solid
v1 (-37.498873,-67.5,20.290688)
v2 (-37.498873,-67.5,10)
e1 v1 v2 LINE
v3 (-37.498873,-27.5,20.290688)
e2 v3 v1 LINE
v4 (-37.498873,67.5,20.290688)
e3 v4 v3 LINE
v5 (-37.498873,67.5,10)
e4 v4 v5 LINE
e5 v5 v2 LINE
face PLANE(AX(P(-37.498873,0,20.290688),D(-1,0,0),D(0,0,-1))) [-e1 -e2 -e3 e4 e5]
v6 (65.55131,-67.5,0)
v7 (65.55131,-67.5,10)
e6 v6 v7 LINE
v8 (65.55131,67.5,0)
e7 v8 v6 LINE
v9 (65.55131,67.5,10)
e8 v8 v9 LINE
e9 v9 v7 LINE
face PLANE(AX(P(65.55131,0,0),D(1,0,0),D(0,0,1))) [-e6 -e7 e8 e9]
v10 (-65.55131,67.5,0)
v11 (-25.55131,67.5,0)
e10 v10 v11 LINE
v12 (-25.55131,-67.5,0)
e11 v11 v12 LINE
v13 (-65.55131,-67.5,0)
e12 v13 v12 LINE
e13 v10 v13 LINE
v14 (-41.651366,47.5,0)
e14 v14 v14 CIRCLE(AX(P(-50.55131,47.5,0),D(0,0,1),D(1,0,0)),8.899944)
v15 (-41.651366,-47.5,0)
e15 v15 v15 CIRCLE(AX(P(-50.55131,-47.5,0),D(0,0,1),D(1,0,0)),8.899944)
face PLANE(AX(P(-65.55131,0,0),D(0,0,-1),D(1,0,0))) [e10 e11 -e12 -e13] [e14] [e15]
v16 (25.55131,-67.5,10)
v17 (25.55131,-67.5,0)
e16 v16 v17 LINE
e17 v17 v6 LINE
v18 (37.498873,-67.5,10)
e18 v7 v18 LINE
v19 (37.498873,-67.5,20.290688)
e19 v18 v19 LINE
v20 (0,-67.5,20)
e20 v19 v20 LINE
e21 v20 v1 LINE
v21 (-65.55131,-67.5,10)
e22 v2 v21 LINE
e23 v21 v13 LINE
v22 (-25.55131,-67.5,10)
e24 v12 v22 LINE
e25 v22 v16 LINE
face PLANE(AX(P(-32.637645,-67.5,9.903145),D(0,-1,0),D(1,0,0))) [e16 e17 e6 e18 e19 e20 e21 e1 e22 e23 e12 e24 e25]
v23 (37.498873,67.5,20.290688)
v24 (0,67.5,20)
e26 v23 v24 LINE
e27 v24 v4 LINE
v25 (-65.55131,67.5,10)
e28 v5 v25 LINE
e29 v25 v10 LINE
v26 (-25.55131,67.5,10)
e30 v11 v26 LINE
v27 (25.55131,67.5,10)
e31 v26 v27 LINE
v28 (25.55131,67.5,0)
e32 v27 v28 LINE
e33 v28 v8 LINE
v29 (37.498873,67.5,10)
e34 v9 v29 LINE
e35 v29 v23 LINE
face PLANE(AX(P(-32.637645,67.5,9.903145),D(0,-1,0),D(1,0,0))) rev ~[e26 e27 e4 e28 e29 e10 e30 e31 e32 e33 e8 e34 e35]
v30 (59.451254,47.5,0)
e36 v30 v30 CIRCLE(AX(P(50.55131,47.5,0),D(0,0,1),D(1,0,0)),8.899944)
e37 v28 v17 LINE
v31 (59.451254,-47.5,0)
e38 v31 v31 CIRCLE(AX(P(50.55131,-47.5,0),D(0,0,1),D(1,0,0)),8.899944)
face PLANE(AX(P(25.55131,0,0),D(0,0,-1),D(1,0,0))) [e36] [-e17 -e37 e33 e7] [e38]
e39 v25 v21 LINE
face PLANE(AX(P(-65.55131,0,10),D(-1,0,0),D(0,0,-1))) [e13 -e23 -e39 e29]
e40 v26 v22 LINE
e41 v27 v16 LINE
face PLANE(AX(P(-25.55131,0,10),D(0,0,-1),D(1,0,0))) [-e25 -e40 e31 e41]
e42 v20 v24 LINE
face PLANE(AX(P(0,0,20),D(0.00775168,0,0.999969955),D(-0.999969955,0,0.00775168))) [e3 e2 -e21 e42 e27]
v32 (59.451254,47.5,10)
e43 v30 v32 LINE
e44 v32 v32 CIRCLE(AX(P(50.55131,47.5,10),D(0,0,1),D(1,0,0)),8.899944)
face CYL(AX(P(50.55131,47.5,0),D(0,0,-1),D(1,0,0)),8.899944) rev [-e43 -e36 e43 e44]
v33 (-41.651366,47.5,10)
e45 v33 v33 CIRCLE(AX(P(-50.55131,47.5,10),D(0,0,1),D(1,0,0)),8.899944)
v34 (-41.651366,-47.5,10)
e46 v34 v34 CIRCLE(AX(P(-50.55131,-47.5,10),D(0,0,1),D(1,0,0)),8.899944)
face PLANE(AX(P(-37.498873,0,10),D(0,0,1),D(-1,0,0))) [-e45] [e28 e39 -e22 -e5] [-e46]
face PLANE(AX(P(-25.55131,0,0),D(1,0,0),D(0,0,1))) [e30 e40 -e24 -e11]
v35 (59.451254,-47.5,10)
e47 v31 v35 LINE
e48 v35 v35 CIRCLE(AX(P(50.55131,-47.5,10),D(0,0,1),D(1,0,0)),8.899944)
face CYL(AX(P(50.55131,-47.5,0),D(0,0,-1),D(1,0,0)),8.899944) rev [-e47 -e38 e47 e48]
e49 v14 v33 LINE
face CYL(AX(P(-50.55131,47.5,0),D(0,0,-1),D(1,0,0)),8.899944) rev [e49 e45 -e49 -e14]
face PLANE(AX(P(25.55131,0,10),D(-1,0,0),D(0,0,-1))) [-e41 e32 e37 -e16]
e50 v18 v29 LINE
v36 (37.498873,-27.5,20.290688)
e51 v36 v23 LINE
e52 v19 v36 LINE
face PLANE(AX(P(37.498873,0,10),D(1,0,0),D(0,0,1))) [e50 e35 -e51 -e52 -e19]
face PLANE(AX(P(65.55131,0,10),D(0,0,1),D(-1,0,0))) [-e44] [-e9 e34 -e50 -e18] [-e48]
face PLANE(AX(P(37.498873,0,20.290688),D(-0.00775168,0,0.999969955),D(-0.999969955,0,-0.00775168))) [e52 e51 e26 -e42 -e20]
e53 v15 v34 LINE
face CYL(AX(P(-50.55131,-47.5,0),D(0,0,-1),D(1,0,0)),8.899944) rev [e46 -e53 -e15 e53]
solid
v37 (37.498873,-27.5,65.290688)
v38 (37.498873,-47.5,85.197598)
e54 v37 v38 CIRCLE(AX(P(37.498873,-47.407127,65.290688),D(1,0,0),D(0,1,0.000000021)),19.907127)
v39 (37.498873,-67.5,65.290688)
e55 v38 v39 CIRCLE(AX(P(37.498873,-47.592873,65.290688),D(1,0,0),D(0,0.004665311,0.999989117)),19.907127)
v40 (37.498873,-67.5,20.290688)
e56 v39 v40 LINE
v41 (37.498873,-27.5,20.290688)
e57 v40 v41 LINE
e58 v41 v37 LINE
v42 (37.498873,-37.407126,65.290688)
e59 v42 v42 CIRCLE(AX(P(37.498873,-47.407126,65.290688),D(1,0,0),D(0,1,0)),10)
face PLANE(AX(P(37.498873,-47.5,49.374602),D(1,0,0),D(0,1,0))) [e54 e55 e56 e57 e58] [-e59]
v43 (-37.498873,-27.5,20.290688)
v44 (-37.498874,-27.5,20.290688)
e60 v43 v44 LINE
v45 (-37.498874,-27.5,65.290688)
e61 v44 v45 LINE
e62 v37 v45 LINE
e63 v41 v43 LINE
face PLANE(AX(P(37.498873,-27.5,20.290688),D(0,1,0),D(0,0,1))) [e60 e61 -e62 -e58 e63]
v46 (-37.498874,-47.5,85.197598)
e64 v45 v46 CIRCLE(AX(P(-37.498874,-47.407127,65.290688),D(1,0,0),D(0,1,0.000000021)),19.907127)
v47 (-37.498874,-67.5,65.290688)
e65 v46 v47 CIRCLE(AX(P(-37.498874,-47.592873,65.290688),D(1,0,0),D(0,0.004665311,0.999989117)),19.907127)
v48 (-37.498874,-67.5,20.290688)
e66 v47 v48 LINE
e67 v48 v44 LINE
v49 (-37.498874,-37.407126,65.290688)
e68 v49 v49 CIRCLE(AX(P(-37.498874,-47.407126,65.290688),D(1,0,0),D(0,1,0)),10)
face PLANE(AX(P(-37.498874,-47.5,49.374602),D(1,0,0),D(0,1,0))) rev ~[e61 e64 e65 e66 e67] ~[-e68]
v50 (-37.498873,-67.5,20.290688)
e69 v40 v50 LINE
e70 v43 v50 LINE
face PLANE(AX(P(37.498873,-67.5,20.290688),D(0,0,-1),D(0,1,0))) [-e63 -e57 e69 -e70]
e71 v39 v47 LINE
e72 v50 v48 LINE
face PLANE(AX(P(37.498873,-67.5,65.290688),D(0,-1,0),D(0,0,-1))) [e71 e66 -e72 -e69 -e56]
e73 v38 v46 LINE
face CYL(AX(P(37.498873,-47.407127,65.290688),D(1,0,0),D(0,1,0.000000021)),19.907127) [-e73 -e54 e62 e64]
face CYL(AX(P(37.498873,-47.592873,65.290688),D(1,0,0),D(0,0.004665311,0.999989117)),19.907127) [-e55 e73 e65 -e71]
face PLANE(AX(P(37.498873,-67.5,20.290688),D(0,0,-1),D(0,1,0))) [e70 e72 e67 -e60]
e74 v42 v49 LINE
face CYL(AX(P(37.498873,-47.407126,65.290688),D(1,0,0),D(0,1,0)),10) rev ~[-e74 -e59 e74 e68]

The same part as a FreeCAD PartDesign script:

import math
import FreeCAD as App
import Part
import Sketcher

V = App.Vector
Q = App.Units.Quantity


def add_polygon(sketch, points):
    """Adds a closed chain of lines whose ends are joined by coincident constraints."""
    first, n = sketch.GeometryCount, len(points)
    for a, b in zip(points, points[1:] + points[:1]):
        sketch.addGeometry(Part.LineSegment(App.Vector(*a, 0), App.Vector(*b, 0)), False)
    for i in range(n):
        sketch.addConstraint(Sketcher.Constraint("Coincident", first + i, 2, first + (i + 1) % n, 1))

doc = App.newDocument("Part")
params = doc.addObject("Spreadsheet::Sheet", "Params")
for row, (alias, value) in enumerate([
    ("sketch1_width", "40 mm"),
    ("sketch1_height", "10 mm"),
    ("sketch1_length", "37.5 mm"),
    ("pad1_length", "135 mm"),
    ("sketch2_diameter", "20 mm"),
    ("sketch2_width", "40 mm"),
    ("sketch2_height", "45 mm"),
    ("pad2_length", "74.997747 mm"),
    ("pocket1_length", "10 mm"),
], start=1):
    params.set(f"A{row}", alias)
    params.set(f"B{row}", "=" + value)
    params.setAlias(f"B{row}", alias)

body = doc.addObject("PartDesign::Body", "Body")
body.AllowCompound = True

# Sketch on XZ plane
sketch1 = doc.addObject("Sketcher::SketchObject", "Sketch")
body.addObject(sketch1)
sketch1.AttachmentSupport = (doc.XZ_Plane, [""])
sketch1.MapMode = "FlatFace"
add_polygon(sketch1, [(0, 20), (-37.498873, 20.290688), (-37.498873, 10), (-65.55131, 10), (-65.55131, 0), (-25.55131, 0), (-25.55131, 10), (25.55131, 10), (25.55131, 0), (65.55131, 0), (65.55131, 10), (37.498873, 10), (37.498873, 20.290688)])  # lines 0-12
sketch1.addConstraint([
    Sketcher.Constraint("Vertical", 1),
    Sketcher.Constraint("Horizontal", 2),
    Sketcher.Constraint("Vertical", 3),
    Sketcher.Constraint("Horizontal", 4),
    Sketcher.Constraint("Vertical", 5),
    Sketcher.Constraint("Horizontal", 6),
    Sketcher.Constraint("Vertical", 7),
    Sketcher.Constraint("Horizontal", 8),
    Sketcher.Constraint("Vertical", 9),
    Sketcher.Constraint("Horizontal", 10),
    Sketcher.Constraint("Vertical", 11),
    Sketcher.Constraint("Symmetric", 4, 2, 7, 2, -1, 1),
    Sketcher.Constraint("Symmetric", 3, 2, 8, 2, -2),
    Sketcher.Constraint("Symmetric", 1, 2, 10, 2, -2),
    Sketcher.Constraint("PointOnObject", 12, 2, -2),
    Sketcher.Constraint("Horizontal", 2, 2, 5, 2),
    Sketcher.Constraint("Horizontal", 0, 2, 11, 2),
    Sketcher.Constraint("DistanceX", 4, 1, 4, 2, Q("40 mm")),
    Sketcher.Constraint("DistanceY", 3, 2, 3, 1, Q("10 mm")),
    Sketcher.Constraint("DistanceY", -1, 1, 12, 2, Q("20 mm")),
    Sketcher.Constraint("Distance", 0, Q("37.5 mm")),
    Sketcher.Constraint("DistanceX", 6, 1, 6, 2, Q("51.10262 mm")),
    Sketcher.Constraint("DistanceX", 2, 2, 2, 1, Q("28.052437 mm")),
])
sketch1.setExpression("Constraints[30]", "Params.sketch1_width")
sketch1.setExpression("Constraints[31]", "Params.sketch1_height")
sketch1.setExpression("Constraints[33]", "Params.sketch1_length")
pad1 = doc.addObject("PartDesign::Pad", "Pad")
body.addObject(pad1)
pad1.Profile = sketch1
pad1.setExpression("Length", "Params.pad1_length")
pad1.Midplane = True

# Sketch on YZ plane
sketch2 = doc.addObject("Sketcher::SketchObject", "Sketch001")
body.addObject(sketch2)
sketch2.AttachmentSupport = (doc.YZ_Plane, [""])
sketch2.MapMode = "FlatFace"
sketch2.AttachmentOffset = App.Placement(V(0, 0, 37.498873), App.Rotation())
sketch2.addGeometry([
    Part.LineSegment(V(-67.5, 65.290688, 0), V(-67.5, 20.290688, 0)),  # 0
    Part.LineSegment(V(-67.5, 20.290688, 0), V(-27.5, 20.290688, 0)),  # 1
    Part.LineSegment(V(-27.5, 20.290688, 0), V(-27.5, 65.290688, 0)),  # 2
    Part.ArcOfCircle(Part.Circle(V(-47.407127, 65.290688, 0), V(0, 0, 1), 19.907127), math.radians(0.000001), math.radians(90.267304)),  # 3
    Part.ArcOfCircle(Part.Circle(V(-47.592873, 65.290688, 0), V(0, 0, 1), 19.907127), math.radians(89.732696), math.radians(179.999999)),  # 4
    Part.Circle(V(-47.407126, 65.290688, 0), V(0, 0, 1), 10),  # 5
], False)
sketch2.addConstraint([
    Sketcher.Constraint("Coincident", 0, 2, 1, 1),
    Sketcher.Constraint("Coincident", 1, 2, 2, 1),
    Sketcher.Constraint("Tangent", 2, 2, 3, 1),
    Sketcher.Constraint("Coincident", 3, 2, 4, 1),
    Sketcher.Constraint("Tangent", 4, 2, 0, 1),
    Sketcher.Constraint("Vertical", 0),
    Sketcher.Constraint("Horizontal", 1),
    Sketcher.Constraint("Vertical", 2),
    Sketcher.Constraint("Coincident", 5, 3, 3, 3),
    Sketcher.Constraint("Equal", 3, 4),
    Sketcher.Constraint("Horizontal", 3, 3, 4, 3),
    Sketcher.Constraint("Diameter", 5, Q("20 mm")),
    Sketcher.Constraint("DistanceX", 1, 1, 1, 2, Q("40 mm")),
    Sketcher.Constraint("DistanceY", 0, 2, 0, 1, Q("45 mm")),
    Sketcher.Constraint("DistanceX", 0, 2, -1, 1, Q("67.5 mm")),
    Sketcher.Constraint("Radius", 3, Q("19.907127 mm")),
    Sketcher.Constraint("DistanceY", -1, 1, 5, 3, Q("65.290688 mm")),
])
sketch2.setExpression("Constraints[11]", "Params.sketch2_diameter")
sketch2.setExpression("Constraints[12]", "Params.sketch2_width")
sketch2.setExpression("Constraints[13]", "Params.sketch2_height")
pad2 = doc.addObject("PartDesign::Pad", "Pad001")
body.addObject(pad2)
pad2.Profile = sketch2
pad2.setExpression("Length", "Params.pad2_length")
pad2.Reversed = True

# Sketch on XY plane
sketch3 = doc.addObject("Sketcher::SketchObject", "Sketch002")
body.addObject(sketch3)
sketch3.AttachmentSupport = (doc.XY_Plane, [""])
sketch3.MapMode = "FlatFace"
sketch3.addGeometry([
    Part.Circle(V(-51, 48, 0), V(0, 0, 1), 9),
    Part.Circle(V(-51, -48, 0), V(0, 0, 1), 9),
    Part.Circle(V(51, -48, 0), V(0, 0, 1), 9),
    Part.Circle(V(51, 48, 0), V(0, 0, 1), 9),
], False)
sketch3.addConstraint([
    Sketcher.Constraint("Equal", 0, 1),
    Sketcher.Constraint("Equal", 1, 2),
    Sketcher.Constraint("Equal", 2, 3),
    Sketcher.Constraint("Symmetric", 0, 3, 2, 3, -1, 1),
    Sketcher.Constraint("Symmetric", 1, 3, 3, 3, -1, 1),
    Sketcher.Constraint("Symmetric", 1, 3, 2, 3, -2),
    Sketcher.Constraint("DistanceY", 1, 3, 0, 3, Q("95 mm")),
    Sketcher.Constraint("Diameter", 0, Q("17.799888 mm")),
    Sketcher.Constraint("DistanceX", 0, 3, -1, 1, Q("50.55131 mm")),
])
pocket1 = doc.addObject("PartDesign::Pocket", "Pocket")
body.addObject(pocket1)
pocket1.Profile = sketch3
pocket1.setExpression("Length", "Params.pocket1_length")
pocket1.Reversed = True

doc.recompute()
